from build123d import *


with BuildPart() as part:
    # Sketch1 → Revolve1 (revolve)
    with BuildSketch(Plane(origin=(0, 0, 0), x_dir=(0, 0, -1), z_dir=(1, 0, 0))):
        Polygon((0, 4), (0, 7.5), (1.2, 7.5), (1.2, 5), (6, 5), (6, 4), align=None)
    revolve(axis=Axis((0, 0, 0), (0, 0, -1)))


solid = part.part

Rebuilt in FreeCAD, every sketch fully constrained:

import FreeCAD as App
import Part
import Sketcher
from FreeCAD import Vector


def add_polygon(sketch, points):
    """Adds a closed chain of lines whose ends are joined by coincident constraints."""
    first, n = sketch.GeometryCount, len(points)
    for a, b in zip(points, points[1:] + points[:1]):
        sketch.addGeometry(Part.LineSegment(App.Vector(*a, 0), App.Vector(*b, 0)), False)
    for i in range(n):
        sketch.addConstraint(Sketcher.Constraint("Coincident", first + i, 2, first + (i + 1) % n, 1))

doc = App.newDocument("Part")
body = doc.addObject("PartDesign::Body", "Body")

# Sketch on YZ plane
sketch1 = body.newObject("Sketcher::SketchObject", "Sketch")
sketch1.AttachmentSupport = (doc.getObject("YZ_Plane"), [""])
sketch1.MapMode = "FlatFace"
add_polygon(sketch1, [(7.5, 0), (4, 0), (4, -6), (5, -6), (5, -1.2), (7.5, -1.2)])  # lines 0-5
sketch1.addConstraint(Sketcher.Constraint("Horizontal", 0))
sketch1.addConstraint(Sketcher.Constraint("Vertical", 1))
sketch1.addConstraint(Sketcher.Constraint("Horizontal", 2))
sketch1.addConstraint(Sketcher.Constraint("Vertical", 3))
sketch1.addConstraint(Sketcher.Constraint("Horizontal", 4))
sketch1.addConstraint(Sketcher.Constraint("Vertical", 5))
sketch1.addConstraint(Sketcher.Constraint("PointOnObject", 0, 2, -1))
sketch1.addConstraint(Sketcher.Constraint("DistanceX", 2, 1, 2, 2, 1.0))
sketch1.addConstraint(Sketcher.Constraint("DistanceY", 1, 2, 1, 1, 6.0))
sketch1.addConstraint(Sketcher.Constraint("DistanceX", 0, 2, 0, 1, 3.5))
sketch1.addConstraint(Sketcher.Constraint("DistanceY", 3, 1, 3, 2, 4.8))
sketch1.addConstraint(Sketcher.Constraint("DistanceX", -1, 1, 0, 2, 4.0))
revolution = body.newObject("PartDesign::Revolution", "Revolution")
revolution.Profile = sketch1
revolution.ReferenceAxis = (sketch1, ["V_Axis"])
revolution.Angle = 360

doc.recompute()
